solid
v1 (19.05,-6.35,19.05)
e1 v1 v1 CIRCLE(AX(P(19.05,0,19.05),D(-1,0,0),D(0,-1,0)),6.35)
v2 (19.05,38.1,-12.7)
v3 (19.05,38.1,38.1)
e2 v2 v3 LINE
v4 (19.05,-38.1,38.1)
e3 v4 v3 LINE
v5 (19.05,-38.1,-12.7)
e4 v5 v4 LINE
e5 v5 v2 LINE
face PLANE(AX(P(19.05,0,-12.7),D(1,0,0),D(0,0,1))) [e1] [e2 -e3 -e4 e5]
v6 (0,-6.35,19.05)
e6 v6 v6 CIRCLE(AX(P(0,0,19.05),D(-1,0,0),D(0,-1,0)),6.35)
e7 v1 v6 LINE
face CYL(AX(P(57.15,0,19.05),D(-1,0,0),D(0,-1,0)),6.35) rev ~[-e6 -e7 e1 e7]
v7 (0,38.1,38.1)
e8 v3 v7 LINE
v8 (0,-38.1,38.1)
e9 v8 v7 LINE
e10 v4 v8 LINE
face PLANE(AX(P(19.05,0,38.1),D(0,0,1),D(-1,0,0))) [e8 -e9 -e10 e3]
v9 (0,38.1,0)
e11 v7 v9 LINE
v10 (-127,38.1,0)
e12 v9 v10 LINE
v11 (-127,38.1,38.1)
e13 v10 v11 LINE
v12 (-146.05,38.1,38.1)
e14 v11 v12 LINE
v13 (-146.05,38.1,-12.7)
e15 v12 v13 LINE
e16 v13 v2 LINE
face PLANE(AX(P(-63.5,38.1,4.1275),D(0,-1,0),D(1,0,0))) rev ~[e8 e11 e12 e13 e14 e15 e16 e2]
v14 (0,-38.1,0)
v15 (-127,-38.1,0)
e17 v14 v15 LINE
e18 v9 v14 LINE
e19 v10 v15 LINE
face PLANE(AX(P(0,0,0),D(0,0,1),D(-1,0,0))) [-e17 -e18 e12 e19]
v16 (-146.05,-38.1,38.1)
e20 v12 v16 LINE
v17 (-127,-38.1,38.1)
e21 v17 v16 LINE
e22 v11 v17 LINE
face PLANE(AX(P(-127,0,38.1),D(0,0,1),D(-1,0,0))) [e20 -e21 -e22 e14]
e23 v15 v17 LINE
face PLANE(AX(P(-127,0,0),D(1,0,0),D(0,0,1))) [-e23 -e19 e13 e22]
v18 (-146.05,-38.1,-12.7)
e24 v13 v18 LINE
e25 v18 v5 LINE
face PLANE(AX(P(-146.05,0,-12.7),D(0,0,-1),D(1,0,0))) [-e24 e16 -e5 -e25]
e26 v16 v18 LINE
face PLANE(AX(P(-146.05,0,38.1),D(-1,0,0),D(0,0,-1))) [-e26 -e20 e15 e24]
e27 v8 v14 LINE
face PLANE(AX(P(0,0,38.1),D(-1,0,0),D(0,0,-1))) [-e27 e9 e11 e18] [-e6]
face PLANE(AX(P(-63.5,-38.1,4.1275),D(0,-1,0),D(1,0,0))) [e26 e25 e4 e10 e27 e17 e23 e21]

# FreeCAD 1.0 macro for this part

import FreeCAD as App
import Part
import Sketcher
Q = App.Units.Quantity

doc = App.newDocument("Part")
body = doc.addObject("PartDesign::Body", "Body")

# Sketch on XZ plane
sketch1 = doc.addObject("Sketcher::SketchObject", "Sketch")
body.addObject(sketch1)
sketch1.AttachmentSupport = (doc.XZ_Plane, [""])
sketch1.MapMode = "FlatFace"
sketch1.addGeometry(Part.LineSegment(App.Vector(0, 38, 0), App.Vector(0, 0, 0)), False)
sketch1.addGeometry(Part.LineSegment(App.Vector(0, 0, 0), App.Vector(-127, 0, 0)), False)
sketch1.addGeometry(Part.LineSegment(App.Vector(-127, 0, 0), App.Vector(-127, 38, 0)), False)
sketch1.addGeometry(Part.LineSegment(App.Vector(-127, 38, 0), App.Vector(-146, 38, 0)), False)
sketch1.addGeometry(Part.LineSegment(App.Vector(-146, 38, 0), App.Vector(-146, -13, 0)), False)
sketch1.addGeometry(Part.LineSegment(App.Vector(-146, -13, 0), App.Vector(19, -13, 0)), False)
sketch1.addGeometry(Part.LineSegment(App.Vector(19, -13, 0), App.Vector(19, 38, 0)), False)
sketch1.addGeometry(Part.LineSegment(App.Vector(19, 38, 0), App.Vector(0, 38, 0)), False)
sketch1.addConstraint(Sketcher.Constraint("Coincident", 0, 2, 1, 1))
sketch1.addConstraint(Sketcher.Constraint("Coincident", 1, 2, 2, 1))
sketch1.addConstraint(Sketcher.Constraint("Coincident", 2, 2, 3, 1))
sketch1.addConstraint(Sketcher.Constraint("Coincident", 3, 2, 4, 1))
sketch1.addConstraint(Sketcher.Constraint("Coincident", 4, 2, 5, 1))
sketch1.addConstraint(Sketcher.Constraint("Coincident", 5, 2, 6, 1))
sketch1.addConstraint(Sketcher.Constraint("Coincident", 6, 2, 7, 1))
sketch1.addConstraint(Sketcher.Constraint("Coincident", 7, 2, 0, 1))
sketch1.addConstraint(Sketcher.Constraint("Vertical", 0))
sketch1.addConstraint(Sketcher.Constraint("Horizontal", 1))
sketch1.addConstraint(Sketcher.Constraint("Vertical", 2))
sketch1.addConstraint(Sketcher.Constraint("Horizontal", 3))
sketch1.addConstraint(Sketcher.Constraint("Vertical", 4))
sketch1.addConstraint(Sketcher.Constraint("Horizontal", 5))
sketch1.addConstraint(Sketcher.Constraint("Vertical", 6))
sketch1.addConstraint(Sketcher.Constraint("Horizontal", 7))
sketch1.addConstraint(Sketcher.Constraint("Coincident", 0, 2, -1, 1))
sketch1.addConstraint(Sketcher.Constraint("Horizontal", 3, 2, 6, 2))
sketch1.addConstraint(Sketcher.Constraint("Equal", 3, 7))
sketch1.addConstraint(Sketcher.Constraint("DistanceX", 1, 2, 1, 1, Q("5 in")))
sketch1.addConstraint(Sketcher.Constraint("DistanceY", 4, 2, 4, 1, Q("2 in")))
sketch1.addConstraint(Sketcher.Constraint("DistanceX", 5, 1, 5, 2, Q("6.5 in")))
sketch1.addConstraint(Sketcher.Constraint("DistanceY", 0, 2, 0, 1, Q("1.5 in")))
pad1 = doc.addObject("PartDesign::Pad", "Pad")
body.addObject(pad1)
pad1.Profile = sketch1
pad1.Length = Q("3 in")
pad1.Midplane = True

# Sketch on YZ plane
sketch2 = doc.addObject("Sketcher::SketchObject", "Sketch001")
body.addObject(sketch2)
sketch2.AttachmentSupport = (doc.YZ_Plane, [""])
sketch2.MapMode = "FlatFace"
sketch2.AttachmentOffset = App.Placement(App.Vector(0, 0, 0.75 * 25.4), App.Rotation())
sketch2.addGeometry(Part.Circle(App.Vector(0, 19, 0), App.Vector(0, 0, 1), 6), False)
sketch2.addConstraint(Sketcher.Constraint("PointOnObject", 0, 3, -2))
sketch2.addConstraint(Sketcher.Constraint("Diameter", 0, Q("0.5 in")))
sketch2.addConstraint(Sketcher.Constraint("DistanceY", -1, 1, 0, 3, Q("0.75 in")))
doc.recompute()
hole = doc.addObject("PartDesign::Hole", "Hole")
body.addObject(hole)
hole.Profile = sketch2
hole.ThreadType = "None"
hole.Diameter = Q("0.5 in")
hole.DepthType = "Dimension"
hole.Depth = Q("1.5 in")
hole.DrillPoint = "Flat"

doc.recompute()
